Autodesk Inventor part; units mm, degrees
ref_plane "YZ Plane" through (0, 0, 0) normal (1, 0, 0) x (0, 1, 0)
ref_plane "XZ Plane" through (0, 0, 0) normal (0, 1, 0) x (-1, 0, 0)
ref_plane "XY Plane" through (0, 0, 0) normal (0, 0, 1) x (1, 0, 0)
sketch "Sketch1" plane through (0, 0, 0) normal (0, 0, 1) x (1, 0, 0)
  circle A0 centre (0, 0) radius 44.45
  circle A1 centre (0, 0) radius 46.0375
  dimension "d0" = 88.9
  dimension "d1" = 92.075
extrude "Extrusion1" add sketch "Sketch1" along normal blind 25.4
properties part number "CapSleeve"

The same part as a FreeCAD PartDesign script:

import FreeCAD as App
import Part
import Sketcher

V = App.Vector
Q = App.Units.Quantity

doc = App.newDocument("Part")
params = doc.addObject("Spreadsheet::Sheet", "Params")
for row, (alias, value) in enumerate([
    ("sketch1_diameter", "3.5 in"),
    ("sketch1_diameter2", "3.625 in"),
    ("pad1_length", "1 in"),
], start=1):
    params.set(f"A{row}", alias)
    params.set(f"B{row}", "=" + value)
    params.setAlias(f"B{row}", alias)

body = doc.addObject("PartDesign::Body", "Body")

sketch1 = body.newObject("Sketcher::SketchObject", "Sketch")
sketch1.AttachmentSupport = (doc.getObject("XY_Plane"), [""])
sketch1.MapMode = "FlatFace"
sketch1.addGeometry([
    Part.Circle(V(0, 0, 0), V(0, 0, 1), 46),
    Part.Circle(V(0, 0, 0), V(0, 0, 1), 44),
], False)
sketch1.addConstraint([
    Sketcher.Constraint("Coincident", 0, 3, -1, 1),
    Sketcher.Constraint("Coincident", 1, 3, -1, 1),
    Sketcher.Constraint("Diameter", 1, Q("3.5 in")),
    Sketcher.Constraint("Diameter", 0, Q("3.625 in")),
])
sketch1.setExpression("Constraints[2]", "Params.sketch1_diameter")
sketch1.setExpression("Constraints[3]", "Params.sketch1_diameter2")
pad1 = body.newObject("PartDesign::Pad", "Pad")
pad1.Profile = sketch1
pad1.setExpression("Length", "Params.pad1_length")

doc.recompute()
